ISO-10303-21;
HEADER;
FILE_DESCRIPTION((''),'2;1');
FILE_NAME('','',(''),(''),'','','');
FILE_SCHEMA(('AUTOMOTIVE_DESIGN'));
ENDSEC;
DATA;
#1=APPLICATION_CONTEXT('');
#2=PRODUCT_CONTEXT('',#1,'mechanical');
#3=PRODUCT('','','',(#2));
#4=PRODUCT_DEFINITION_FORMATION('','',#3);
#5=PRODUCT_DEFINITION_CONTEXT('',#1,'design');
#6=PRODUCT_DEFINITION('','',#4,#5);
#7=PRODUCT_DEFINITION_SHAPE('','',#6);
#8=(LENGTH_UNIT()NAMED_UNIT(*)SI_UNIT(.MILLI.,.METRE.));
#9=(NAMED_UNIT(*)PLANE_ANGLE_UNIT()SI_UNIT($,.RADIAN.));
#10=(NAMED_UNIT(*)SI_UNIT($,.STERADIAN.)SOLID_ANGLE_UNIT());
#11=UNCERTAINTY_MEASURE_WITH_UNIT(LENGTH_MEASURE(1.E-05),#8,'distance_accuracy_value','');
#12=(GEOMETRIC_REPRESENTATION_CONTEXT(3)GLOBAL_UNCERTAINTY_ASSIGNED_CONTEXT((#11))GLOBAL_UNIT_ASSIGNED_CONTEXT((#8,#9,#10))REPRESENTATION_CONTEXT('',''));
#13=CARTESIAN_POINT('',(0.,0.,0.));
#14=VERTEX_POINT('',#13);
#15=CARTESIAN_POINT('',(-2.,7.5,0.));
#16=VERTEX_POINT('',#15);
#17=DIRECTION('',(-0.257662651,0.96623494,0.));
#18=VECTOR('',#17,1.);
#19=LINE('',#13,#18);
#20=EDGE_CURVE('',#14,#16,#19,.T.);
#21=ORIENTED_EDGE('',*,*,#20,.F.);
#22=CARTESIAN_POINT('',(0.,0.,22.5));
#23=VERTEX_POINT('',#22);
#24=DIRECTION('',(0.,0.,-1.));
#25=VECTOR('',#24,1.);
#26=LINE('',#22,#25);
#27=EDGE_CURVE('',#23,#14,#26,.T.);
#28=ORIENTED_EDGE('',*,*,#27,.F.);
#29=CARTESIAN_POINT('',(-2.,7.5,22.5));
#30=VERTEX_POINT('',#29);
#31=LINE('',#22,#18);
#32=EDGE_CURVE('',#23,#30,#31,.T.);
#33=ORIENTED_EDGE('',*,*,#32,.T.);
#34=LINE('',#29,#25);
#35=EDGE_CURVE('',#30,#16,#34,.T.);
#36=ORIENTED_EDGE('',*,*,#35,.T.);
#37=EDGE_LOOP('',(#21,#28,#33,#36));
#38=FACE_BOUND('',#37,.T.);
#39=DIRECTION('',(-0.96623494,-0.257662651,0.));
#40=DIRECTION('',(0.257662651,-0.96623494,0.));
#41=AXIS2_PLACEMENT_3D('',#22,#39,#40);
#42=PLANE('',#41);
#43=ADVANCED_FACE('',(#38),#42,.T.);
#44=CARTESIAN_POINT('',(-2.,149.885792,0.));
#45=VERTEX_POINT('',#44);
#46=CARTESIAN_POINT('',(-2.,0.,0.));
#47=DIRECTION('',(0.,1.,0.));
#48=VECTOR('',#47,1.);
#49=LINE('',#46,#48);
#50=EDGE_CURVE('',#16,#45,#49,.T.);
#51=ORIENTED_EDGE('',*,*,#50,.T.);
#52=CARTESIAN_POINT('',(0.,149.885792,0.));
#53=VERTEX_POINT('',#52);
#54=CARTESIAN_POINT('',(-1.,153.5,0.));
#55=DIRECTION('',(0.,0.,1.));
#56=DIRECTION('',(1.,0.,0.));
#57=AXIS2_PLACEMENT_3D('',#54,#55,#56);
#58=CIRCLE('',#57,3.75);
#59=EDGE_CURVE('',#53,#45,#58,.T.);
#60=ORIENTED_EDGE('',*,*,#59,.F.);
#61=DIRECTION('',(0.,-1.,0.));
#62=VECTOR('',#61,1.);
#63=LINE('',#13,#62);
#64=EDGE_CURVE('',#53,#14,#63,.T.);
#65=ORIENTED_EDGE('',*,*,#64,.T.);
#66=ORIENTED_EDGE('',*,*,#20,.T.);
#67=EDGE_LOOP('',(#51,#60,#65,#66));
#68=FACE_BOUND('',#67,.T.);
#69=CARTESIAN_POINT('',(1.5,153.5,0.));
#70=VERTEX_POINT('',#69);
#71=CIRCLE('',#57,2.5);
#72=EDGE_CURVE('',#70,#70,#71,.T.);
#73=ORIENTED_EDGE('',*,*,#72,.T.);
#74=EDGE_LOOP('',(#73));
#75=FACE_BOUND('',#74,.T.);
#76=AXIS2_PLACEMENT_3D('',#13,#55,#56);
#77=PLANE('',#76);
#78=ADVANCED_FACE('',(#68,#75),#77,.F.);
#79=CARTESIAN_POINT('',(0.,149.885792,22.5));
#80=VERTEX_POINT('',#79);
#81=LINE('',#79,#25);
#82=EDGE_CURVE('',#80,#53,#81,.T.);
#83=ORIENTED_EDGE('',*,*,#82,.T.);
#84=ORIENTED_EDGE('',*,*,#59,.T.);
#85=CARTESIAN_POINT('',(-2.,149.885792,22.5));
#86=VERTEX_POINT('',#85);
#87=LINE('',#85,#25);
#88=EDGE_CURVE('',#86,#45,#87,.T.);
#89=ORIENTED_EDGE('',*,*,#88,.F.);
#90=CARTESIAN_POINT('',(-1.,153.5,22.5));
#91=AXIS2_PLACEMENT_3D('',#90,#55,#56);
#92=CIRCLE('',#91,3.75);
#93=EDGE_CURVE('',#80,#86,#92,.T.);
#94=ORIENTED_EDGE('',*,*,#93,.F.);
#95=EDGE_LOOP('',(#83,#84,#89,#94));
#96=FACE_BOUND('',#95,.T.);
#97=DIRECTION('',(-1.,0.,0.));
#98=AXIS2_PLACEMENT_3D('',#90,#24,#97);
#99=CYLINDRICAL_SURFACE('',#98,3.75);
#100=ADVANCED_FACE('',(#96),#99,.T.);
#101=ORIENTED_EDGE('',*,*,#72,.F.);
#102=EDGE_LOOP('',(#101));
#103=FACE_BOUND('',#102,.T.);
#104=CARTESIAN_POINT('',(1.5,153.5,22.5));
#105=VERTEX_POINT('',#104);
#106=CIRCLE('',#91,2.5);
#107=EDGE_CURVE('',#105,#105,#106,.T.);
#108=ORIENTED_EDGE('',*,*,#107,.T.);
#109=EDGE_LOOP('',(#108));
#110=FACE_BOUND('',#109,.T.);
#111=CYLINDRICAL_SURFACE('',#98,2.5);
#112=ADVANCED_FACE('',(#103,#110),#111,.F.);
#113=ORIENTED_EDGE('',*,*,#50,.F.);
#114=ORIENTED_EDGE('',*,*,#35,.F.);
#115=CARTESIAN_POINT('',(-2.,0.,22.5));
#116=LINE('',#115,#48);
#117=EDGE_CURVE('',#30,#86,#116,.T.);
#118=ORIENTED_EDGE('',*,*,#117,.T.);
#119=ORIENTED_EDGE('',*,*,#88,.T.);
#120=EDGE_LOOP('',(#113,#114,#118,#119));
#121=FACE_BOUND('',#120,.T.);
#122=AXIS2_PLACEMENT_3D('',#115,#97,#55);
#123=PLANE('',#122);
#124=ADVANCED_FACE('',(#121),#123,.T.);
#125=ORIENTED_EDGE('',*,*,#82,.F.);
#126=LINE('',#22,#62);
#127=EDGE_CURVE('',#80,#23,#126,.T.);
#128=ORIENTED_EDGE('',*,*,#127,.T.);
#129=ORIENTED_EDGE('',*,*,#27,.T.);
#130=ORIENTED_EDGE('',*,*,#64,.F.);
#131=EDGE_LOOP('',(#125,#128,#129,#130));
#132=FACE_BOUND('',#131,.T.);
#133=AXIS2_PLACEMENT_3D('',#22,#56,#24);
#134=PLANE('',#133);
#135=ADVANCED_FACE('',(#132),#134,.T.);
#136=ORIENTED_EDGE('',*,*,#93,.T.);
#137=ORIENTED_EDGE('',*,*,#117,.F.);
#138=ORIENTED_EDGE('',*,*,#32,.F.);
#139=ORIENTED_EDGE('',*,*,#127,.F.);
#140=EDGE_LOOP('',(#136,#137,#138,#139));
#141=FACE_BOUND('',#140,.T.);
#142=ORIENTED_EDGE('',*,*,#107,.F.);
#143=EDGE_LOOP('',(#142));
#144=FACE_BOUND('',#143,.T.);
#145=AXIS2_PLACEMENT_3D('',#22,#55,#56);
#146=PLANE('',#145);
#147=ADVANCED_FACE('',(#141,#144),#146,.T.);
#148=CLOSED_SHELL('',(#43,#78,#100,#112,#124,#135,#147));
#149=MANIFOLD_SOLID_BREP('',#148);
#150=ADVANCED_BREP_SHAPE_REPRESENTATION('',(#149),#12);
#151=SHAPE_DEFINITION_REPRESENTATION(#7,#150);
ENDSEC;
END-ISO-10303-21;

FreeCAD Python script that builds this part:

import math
import FreeCAD as App
import Part
import Sketcher

V = App.Vector

doc = App.newDocument("Part")
body = doc.addObject("PartDesign::Body", "Body")

# Sketch on XY plane
sketch1 = body.newObject("Sketcher::SketchObject", "Sketch")
sketch1.AttachmentSupport = (doc.getObject("XY_Plane"), [""])
sketch1.MapMode = "FlatFace"
sketch1.addGeometry([
    Part.LineSegment(V(-2, 149.885792, 0), V(-2, 7.5, 0)),  # 0
    Part.LineSegment(V(-2, 7.5, 0), V(0, 0, 0)),  # 1
    Part.LineSegment(V(0, 0, 0), V(0, 149.885792, 0)),  # 2
    Part.ArcOfCircle(Part.Circle(V(-1, 153.5, 0), V(0, 0, 1), 3.75), math.radians(-74.53399), math.radians(254.53399)),  # 3
    Part.Circle(V(-1, 153.5, 0), V(0, 0, 1), 2.5),  # 4
], False)
sketch1.addConstraint([
    Sketcher.Constraint("Coincident", 0, 2, 1, 1),
    Sketcher.Constraint("Coincident", 1, 2, 2, 1),
    Sketcher.Constraint("Coincident", 2, 2, 3, 1),
    Sketcher.Constraint("Coincident", 3, 2, 0, 1),
    Sketcher.Constraint("Vertical", 0),
    Sketcher.Constraint("Vertical", 2),
    Sketcher.Constraint("Coincident", 1, 2, -1, 1),
    Sketcher.Constraint("Coincident", 4, 3, 3, 3),
    Sketcher.Constraint("Horizontal", 2, 2, 3, 2),
    Sketcher.Constraint("Diameter", 4, 5.0),
    Sketcher.Constraint("Radius", 3, 3.75),
    Sketcher.Constraint("DistanceX", 3, 3, -1, 1, 1.0),
    Sketcher.Constraint("DistanceY", 0, 2, 3, 3, 146.0),
    Sketcher.Constraint("DistanceY", -1, 1, 3, 3, 153.5),
])
pad1 = body.newObject("PartDesign::Pad", "Pad")
pad1.Profile = sketch1
pad1.Length = 22.5

doc.recompute()
